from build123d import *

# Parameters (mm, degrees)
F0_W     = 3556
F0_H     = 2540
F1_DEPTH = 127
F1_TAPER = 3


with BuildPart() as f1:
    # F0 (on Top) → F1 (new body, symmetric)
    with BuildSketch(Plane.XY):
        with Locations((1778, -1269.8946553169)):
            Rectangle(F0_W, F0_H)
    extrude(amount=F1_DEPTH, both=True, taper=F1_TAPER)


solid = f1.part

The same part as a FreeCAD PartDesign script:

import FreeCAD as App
import Part
import Sketcher
from FreeCAD import Vector
Q = App.Units.Quantity

doc = App.newDocument("Part")
body = doc.addObject("PartDesign::Body", "Body")

# Sketch on XY plane
sketch1 = body.newObject("Sketcher::SketchObject", "Sketch")
sketch1.AttachmentSupport = (doc.getObject("XY_Plane"), [""])
sketch1.MapMode = "FlatFace"
sketch1.addGeometry(Part.LineSegment(Vector(0, 0, 0), Vector(0, -2540, 0)), False)
sketch1.addGeometry(Part.LineSegment(Vector(0, -2540, 0), Vector(3556, -2540, 0)), False)
sketch1.addGeometry(Part.LineSegment(Vector(3556, -2540, 0), Vector(3556, 0, 0)), False)
sketch1.addGeometry(Part.LineSegment(Vector(3556, 0, 0), Vector(0, 0, 0)), False)
sketch1.addConstraint(Sketcher.Constraint("Coincident", 0, 2, 1, 1))
sketch1.addConstraint(Sketcher.Constraint("Coincident", 1, 2, 2, 1))
sketch1.addConstraint(Sketcher.Constraint("Coincident", 2, 2, 3, 1))
sketch1.addConstraint(Sketcher.Constraint("Coincident", 3, 2, 0, 1))
sketch1.addConstraint(Sketcher.Constraint("Vertical", 0))
sketch1.addConstraint(Sketcher.Constraint("Horizontal", 1))
sketch1.addConstraint(Sketcher.Constraint("Vertical", 2))
sketch1.addConstraint(Sketcher.Constraint("Horizontal", 3))
sketch1.addConstraint(Sketcher.Constraint("PointOnObject", 0, 2, -2))
sketch1.addConstraint(Sketcher.Constraint("DistanceX", 1, 1, 1, 2, Q("140 in")))
sketch1.addConstraint(Sketcher.Constraint("DistanceY", 0, 2, 0, 1, Q("100 in")))
sketch1.addConstraint(Sketcher.Constraint("DistanceY", 0, 2, -1, 1, Q("2539.894655 mm")))
pad1 = body.newObject("PartDesign::Pad", "Pad")
pad1.Profile = sketch1
pad1.Length = Q("10 in")
pad1.Midplane = True
pad1.TaperAngle = -3

doc.recompute()
